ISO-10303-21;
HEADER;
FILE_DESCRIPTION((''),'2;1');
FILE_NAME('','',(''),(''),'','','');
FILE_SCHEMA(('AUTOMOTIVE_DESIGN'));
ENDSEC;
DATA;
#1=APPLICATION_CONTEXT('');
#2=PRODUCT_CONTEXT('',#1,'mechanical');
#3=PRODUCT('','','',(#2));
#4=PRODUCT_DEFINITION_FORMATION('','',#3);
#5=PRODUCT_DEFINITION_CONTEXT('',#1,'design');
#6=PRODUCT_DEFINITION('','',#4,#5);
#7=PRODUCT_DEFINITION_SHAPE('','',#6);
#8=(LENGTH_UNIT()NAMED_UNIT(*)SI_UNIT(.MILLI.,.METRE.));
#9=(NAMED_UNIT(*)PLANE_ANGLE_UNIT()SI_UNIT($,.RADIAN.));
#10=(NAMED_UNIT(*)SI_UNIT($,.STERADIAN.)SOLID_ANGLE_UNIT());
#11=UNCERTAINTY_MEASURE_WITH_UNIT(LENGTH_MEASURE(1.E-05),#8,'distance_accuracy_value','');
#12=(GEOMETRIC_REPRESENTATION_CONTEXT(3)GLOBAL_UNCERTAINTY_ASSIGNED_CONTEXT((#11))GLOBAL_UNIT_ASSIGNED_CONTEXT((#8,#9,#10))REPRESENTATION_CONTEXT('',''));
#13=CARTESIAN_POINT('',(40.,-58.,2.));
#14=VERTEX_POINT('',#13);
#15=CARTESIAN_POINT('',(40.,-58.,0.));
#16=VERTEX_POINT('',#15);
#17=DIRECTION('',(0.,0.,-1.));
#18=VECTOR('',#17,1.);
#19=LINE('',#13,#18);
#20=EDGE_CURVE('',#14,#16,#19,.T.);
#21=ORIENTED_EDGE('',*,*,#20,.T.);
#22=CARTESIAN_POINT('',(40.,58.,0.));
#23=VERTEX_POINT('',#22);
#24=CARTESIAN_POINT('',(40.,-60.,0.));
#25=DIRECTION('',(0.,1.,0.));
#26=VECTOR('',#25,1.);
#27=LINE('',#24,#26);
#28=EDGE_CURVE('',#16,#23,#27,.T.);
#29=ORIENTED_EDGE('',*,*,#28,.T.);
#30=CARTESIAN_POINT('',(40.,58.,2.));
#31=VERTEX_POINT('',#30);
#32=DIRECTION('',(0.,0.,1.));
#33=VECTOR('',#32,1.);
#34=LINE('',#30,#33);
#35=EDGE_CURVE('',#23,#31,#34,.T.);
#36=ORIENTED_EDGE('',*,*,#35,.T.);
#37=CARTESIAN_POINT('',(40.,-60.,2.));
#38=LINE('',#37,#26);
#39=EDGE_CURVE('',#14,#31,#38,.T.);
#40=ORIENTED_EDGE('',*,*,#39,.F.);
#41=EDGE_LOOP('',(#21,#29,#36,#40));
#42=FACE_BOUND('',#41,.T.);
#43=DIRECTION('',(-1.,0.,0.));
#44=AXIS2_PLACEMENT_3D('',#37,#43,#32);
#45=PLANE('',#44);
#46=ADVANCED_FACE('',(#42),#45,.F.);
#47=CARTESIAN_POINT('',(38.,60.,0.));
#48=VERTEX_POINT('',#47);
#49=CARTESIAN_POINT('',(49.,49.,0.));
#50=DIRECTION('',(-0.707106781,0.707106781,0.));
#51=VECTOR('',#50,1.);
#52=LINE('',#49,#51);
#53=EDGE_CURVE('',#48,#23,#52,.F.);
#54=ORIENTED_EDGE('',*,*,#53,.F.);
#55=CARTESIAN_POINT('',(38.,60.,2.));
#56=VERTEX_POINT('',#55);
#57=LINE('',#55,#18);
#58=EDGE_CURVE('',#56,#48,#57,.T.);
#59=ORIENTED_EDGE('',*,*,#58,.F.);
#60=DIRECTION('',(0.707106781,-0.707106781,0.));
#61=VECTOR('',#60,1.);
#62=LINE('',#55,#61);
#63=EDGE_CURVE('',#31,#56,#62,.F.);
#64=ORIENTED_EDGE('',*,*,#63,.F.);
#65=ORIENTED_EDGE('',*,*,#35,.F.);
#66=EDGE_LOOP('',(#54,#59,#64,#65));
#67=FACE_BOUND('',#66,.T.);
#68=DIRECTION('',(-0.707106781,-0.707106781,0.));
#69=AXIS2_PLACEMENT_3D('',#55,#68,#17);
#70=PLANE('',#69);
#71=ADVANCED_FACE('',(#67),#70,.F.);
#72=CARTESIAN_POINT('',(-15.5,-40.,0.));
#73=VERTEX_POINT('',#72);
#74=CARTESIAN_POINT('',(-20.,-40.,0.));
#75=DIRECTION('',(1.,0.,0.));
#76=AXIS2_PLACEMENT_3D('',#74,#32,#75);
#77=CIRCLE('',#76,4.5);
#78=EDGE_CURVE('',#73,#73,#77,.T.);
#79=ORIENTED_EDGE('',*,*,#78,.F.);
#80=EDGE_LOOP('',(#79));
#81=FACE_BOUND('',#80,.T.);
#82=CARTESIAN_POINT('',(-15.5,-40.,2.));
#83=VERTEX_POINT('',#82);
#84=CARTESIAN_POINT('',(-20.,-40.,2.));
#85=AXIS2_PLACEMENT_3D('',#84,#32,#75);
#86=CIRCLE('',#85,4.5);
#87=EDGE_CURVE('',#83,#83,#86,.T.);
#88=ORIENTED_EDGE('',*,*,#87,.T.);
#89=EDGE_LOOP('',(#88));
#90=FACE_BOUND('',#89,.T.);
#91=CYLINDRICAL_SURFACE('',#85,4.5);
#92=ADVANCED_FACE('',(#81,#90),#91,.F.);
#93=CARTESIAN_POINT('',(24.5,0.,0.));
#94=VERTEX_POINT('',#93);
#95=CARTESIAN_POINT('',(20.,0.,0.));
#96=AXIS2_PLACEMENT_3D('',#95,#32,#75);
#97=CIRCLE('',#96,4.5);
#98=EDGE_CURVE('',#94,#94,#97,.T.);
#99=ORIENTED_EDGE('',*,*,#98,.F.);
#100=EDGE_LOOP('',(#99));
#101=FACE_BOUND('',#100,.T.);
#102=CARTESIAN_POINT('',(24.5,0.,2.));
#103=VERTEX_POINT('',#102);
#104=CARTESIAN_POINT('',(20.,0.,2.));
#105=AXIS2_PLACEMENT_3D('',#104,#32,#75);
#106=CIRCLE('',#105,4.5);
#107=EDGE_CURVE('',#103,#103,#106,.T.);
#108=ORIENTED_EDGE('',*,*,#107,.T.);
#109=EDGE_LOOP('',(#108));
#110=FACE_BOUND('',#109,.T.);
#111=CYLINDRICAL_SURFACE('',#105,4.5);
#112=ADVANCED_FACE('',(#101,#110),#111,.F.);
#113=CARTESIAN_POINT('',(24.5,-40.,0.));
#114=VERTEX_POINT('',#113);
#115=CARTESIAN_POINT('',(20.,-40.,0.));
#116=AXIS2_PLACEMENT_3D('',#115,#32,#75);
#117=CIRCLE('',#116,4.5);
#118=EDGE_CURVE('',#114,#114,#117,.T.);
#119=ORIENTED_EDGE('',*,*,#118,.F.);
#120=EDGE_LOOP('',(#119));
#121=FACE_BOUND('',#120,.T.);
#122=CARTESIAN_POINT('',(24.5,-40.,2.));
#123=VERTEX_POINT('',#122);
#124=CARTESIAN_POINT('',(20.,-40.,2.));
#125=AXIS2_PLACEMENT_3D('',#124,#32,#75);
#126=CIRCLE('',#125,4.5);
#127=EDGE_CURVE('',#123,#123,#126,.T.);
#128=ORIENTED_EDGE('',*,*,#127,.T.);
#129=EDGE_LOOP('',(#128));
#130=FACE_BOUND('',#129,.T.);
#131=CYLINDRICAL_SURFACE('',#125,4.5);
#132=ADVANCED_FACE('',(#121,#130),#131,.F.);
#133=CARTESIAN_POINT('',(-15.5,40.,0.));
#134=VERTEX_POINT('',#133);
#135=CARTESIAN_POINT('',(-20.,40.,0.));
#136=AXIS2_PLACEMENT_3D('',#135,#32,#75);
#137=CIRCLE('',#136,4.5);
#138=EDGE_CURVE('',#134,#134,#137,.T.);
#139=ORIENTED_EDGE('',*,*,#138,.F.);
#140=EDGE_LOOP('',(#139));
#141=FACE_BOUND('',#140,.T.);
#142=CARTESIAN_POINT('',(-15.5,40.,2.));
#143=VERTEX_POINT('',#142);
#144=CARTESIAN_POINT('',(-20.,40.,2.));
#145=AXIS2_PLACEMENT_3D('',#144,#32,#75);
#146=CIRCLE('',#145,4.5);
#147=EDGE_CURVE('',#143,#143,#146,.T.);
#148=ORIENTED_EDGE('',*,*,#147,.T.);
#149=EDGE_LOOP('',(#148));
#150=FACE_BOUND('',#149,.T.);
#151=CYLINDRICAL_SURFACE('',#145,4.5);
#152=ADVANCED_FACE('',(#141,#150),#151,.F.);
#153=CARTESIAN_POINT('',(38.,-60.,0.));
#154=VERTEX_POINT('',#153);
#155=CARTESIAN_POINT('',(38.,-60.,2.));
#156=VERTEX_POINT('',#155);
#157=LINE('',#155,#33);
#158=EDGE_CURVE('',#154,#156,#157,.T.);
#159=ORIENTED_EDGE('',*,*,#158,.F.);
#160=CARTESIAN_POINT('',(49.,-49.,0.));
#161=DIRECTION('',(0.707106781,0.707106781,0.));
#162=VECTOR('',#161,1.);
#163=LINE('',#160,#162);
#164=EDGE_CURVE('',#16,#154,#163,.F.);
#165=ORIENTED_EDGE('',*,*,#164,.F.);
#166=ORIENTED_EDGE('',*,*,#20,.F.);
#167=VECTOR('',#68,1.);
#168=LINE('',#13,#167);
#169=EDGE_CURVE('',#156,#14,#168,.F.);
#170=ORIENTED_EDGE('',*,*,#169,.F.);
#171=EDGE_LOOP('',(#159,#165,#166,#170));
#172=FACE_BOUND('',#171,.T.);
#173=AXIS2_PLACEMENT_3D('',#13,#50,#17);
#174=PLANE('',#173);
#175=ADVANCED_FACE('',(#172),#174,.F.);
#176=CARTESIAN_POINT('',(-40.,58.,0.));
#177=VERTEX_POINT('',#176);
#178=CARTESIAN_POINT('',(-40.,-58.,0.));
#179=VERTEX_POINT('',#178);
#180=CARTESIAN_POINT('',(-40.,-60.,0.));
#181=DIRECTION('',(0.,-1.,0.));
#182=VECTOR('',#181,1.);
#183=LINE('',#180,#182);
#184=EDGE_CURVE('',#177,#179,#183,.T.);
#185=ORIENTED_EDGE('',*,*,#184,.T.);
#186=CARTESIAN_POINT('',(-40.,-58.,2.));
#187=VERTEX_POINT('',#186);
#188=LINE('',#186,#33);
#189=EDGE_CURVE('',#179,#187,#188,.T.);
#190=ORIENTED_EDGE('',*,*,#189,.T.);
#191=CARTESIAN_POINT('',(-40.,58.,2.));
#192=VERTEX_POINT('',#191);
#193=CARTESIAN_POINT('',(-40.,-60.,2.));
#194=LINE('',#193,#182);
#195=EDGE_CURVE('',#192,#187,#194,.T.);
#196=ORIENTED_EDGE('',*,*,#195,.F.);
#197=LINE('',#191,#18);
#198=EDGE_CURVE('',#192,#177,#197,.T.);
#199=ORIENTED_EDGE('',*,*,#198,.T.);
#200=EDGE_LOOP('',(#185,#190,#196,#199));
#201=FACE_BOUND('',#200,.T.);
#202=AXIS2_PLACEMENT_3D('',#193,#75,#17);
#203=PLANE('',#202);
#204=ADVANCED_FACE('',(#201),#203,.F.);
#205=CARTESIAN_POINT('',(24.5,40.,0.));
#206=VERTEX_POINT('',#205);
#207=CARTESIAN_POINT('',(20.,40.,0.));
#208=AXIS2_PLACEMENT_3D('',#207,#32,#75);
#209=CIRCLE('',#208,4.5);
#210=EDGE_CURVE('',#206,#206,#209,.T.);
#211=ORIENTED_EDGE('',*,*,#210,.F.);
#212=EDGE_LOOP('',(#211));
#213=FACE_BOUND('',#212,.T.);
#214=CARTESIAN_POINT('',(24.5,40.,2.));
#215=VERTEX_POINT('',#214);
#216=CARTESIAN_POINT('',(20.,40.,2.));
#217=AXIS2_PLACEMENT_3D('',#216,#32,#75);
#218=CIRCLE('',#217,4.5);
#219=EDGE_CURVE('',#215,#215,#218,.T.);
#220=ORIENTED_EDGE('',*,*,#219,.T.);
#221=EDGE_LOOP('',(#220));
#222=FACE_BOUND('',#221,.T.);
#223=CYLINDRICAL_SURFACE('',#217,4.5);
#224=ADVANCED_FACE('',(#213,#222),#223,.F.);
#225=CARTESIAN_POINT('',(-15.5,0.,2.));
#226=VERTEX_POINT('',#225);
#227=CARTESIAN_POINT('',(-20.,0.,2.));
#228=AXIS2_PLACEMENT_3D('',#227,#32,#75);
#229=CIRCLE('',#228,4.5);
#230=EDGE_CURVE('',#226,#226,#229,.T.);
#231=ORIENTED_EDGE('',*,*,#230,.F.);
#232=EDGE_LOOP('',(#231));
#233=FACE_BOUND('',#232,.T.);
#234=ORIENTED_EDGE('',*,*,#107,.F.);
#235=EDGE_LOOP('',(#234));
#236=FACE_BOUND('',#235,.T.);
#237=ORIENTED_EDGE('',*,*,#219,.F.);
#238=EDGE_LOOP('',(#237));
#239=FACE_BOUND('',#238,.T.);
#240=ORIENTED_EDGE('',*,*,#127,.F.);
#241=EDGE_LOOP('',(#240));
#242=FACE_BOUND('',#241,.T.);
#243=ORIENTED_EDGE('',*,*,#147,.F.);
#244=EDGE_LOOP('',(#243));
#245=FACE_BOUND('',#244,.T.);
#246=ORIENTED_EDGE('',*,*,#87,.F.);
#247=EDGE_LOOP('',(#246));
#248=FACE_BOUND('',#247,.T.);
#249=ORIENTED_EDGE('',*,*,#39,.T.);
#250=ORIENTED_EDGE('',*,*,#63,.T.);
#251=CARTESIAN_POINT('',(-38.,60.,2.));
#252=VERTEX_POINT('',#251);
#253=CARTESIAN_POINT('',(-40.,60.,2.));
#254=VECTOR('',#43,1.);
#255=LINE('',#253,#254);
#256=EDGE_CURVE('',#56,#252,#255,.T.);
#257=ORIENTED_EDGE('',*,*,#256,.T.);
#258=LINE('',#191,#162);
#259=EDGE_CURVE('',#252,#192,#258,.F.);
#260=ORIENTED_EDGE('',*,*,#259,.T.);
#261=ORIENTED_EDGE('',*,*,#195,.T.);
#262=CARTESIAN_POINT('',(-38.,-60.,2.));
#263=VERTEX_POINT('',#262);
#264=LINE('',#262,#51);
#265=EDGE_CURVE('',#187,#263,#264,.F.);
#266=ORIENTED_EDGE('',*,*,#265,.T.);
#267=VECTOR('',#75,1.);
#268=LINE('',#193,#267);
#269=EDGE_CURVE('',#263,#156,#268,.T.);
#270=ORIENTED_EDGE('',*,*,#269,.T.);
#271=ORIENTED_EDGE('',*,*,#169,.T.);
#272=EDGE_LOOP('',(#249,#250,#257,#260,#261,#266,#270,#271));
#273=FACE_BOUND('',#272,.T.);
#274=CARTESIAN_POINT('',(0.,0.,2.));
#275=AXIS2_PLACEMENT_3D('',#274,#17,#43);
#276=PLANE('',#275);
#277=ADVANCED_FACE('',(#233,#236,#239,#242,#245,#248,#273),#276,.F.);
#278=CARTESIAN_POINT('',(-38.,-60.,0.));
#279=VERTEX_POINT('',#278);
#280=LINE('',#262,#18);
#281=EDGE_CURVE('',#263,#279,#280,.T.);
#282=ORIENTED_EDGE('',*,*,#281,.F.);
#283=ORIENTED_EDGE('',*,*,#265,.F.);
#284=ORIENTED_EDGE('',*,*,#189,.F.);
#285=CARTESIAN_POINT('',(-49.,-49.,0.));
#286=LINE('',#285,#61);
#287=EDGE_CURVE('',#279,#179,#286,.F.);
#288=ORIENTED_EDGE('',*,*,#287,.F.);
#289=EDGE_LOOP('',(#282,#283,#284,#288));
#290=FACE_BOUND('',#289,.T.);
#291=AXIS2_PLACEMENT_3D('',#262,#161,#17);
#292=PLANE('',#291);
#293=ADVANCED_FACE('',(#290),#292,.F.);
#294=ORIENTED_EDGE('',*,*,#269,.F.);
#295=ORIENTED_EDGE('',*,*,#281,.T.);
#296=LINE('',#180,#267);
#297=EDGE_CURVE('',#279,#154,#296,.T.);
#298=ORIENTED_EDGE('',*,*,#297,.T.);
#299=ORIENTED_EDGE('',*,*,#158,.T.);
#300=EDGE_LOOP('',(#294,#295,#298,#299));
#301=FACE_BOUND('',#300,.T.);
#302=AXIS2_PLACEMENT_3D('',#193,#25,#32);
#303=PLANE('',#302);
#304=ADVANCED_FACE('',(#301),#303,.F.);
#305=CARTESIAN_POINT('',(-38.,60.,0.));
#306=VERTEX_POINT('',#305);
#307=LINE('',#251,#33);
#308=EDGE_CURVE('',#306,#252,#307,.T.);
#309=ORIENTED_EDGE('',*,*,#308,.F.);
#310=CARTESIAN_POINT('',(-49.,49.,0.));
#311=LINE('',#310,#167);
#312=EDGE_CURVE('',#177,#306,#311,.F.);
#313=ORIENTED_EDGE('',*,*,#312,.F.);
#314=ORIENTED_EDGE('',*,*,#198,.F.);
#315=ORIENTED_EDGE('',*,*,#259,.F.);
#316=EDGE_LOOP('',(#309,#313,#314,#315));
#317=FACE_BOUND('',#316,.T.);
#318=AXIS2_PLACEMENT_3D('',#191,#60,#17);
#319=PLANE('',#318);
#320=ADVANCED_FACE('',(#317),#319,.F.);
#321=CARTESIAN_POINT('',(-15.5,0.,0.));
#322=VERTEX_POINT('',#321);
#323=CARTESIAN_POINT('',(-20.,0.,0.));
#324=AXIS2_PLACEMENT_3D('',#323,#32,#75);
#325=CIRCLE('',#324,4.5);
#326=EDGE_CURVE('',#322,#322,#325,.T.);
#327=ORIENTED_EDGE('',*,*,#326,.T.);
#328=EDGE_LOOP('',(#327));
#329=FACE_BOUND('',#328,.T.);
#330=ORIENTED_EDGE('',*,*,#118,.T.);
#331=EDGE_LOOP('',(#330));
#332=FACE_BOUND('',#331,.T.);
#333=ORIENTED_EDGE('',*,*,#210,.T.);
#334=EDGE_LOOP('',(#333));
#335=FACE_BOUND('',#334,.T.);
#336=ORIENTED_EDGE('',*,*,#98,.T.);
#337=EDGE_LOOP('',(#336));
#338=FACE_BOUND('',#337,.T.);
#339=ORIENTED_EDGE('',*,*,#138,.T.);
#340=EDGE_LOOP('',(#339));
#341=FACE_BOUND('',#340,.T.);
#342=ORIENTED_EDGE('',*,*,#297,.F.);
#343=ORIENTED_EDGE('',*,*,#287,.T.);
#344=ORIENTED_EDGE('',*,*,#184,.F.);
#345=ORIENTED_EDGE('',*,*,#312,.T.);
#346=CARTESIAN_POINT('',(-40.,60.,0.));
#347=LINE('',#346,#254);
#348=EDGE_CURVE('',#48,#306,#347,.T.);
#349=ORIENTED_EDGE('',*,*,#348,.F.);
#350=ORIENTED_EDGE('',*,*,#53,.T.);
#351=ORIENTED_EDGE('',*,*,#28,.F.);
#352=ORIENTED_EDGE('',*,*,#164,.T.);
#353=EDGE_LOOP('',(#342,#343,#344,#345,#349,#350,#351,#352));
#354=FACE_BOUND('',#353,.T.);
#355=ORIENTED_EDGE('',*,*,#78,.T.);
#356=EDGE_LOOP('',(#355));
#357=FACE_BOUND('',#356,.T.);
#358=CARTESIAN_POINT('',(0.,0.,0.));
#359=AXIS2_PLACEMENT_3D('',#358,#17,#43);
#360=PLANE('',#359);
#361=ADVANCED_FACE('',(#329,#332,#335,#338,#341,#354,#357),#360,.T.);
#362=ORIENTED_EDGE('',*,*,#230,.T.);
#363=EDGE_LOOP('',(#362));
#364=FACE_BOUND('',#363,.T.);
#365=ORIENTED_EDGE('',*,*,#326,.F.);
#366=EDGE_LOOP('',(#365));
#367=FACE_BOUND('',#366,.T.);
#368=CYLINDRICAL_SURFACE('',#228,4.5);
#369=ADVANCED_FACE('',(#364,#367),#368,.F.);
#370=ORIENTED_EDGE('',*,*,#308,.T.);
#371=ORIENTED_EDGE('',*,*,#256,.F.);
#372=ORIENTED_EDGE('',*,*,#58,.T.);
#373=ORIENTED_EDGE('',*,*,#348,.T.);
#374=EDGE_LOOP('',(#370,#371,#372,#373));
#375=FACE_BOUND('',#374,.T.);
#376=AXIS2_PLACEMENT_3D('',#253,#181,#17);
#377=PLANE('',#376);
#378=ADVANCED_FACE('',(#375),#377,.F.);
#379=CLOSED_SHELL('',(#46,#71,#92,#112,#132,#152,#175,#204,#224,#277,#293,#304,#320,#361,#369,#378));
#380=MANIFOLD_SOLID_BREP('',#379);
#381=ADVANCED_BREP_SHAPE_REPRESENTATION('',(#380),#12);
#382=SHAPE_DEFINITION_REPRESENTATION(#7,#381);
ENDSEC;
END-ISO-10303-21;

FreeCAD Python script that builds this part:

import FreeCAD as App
import Part
import Sketcher
from FreeCAD import Vector


def edges_at(feature, points):
    """Names of the edges that pass closest to the given points."""
    edges = feature.Shape.Edges
    near = lambda p: min(range(len(edges)), key=lambda i: edges[i].distToShape(Part.Vertex(*p))[0])
    return sorted({f"Edge{near(p) + 1}" for p in points})

doc = App.newDocument("Part")
body = doc.addObject("PartDesign::Body", "Body")

# Sketch on XY plane
sketch1 = doc.addObject("Sketcher::SketchObject", "Sketch")
body.addObject(sketch1)
sketch1.AttachmentSupport = (doc.XY_Plane, [""])
sketch1.MapMode = "FlatFace"
sketch1.addGeometry([
    Part.LineSegment(Vector(-40, 60, 0), Vector(-40, -60, 0)),
    Part.LineSegment(Vector(-40, -60, 0), Vector(40, -60, 0)),
    Part.LineSegment(Vector(40, -60, 0), Vector(40, 60, 0)),
    Part.LineSegment(Vector(40, 60, 0), Vector(-40, 60, 0)),
], False)
sketch1.addConstraint([
    Sketcher.Constraint("Coincident", 0, 2, 1, 1),
    Sketcher.Constraint("Coincident", 1, 2, 2, 1),
    Sketcher.Constraint("Coincident", 2, 2, 3, 1),
    Sketcher.Constraint("Coincident", 3, 2, 0, 1),
    Sketcher.Constraint("Vertical", 0),
    Sketcher.Constraint("Horizontal", 1),
    Sketcher.Constraint("Vertical", 2),
    Sketcher.Constraint("Horizontal", 3),
    Sketcher.Constraint("Symmetric", 0, 2, 2, 2, -1, 1),
    Sketcher.Constraint("DistanceX", 1, 1, 1, 2, 80.0),
    Sketcher.Constraint("DistanceY", 0, 2, 0, 1, 120.0),
])
pad1 = doc.addObject("PartDesign::Pad", "Pad")
body.addObject(pad1)
pad1.Profile = sketch1
pad1.Length = 2
doc.recompute()

chamfer = doc.addObject("PartDesign::Chamfer", "Chamfer")
body.addObject(chamfer)
chamfer.Base = (pad1, edges_at(pad1, [
    (40, -60, 1),
    (-40, -60, 1),
    (-40, 60, 1),
    (40, 60, 1),
]))
chamfer.Size = 2

# Sketch on XY plane
sketch2 = doc.addObject("Sketcher::SketchObject", "Sketch001")
body.addObject(sketch2)
sketch2.AttachmentSupport = (doc.XY_Plane, [""])
sketch2.MapMode = "FlatFace"
sketch2.AttachmentOffset = App.Placement(Vector(0, 0, 2), App.Rotation())
sketch2.addGeometry([
    Part.Circle(Vector(-20, 40, 0), Vector(0, 0, 1), 4.5),  # 0
    Part.Circle(Vector(20, 40, 0), Vector(0, 0, 1), 4.5),  # 1
    Part.Circle(Vector(20, 0, 0), Vector(0, 0, 1), 4.5),  # 2
    Part.Circle(Vector(-20, 0, 0), Vector(0, 0, 1), 4.5),  # 3
    Part.Circle(Vector(-20, -40, 0), Vector(0, 0, 1), 4.5),  # 4
    Part.Circle(Vector(20, -40, 0), Vector(0, 0, 1), 4.5),  # 5
], False)
sketch2.addConstraint([
    Sketcher.Constraint("Equal", 0, 1),
    Sketcher.Constraint("Equal", 1, 2),
    Sketcher.Constraint("Equal", 2, 3),
    Sketcher.Constraint("Equal", 3, 4),
    Sketcher.Constraint("Equal", 4, 5),
    Sketcher.Constraint("Symmetric", 2, 3, 3, 3, -1, 1),
    Sketcher.Constraint("Symmetric", 1, 3, 4, 3, -1, 1),
    Sketcher.Constraint("Symmetric", 0, 3, 5, 3, -1, 1),
    Sketcher.Constraint("Symmetric", 0, 3, 1, 3, -2),
    Sketcher.Constraint("PointOnObject", 2, 3, -1),
    Sketcher.Constraint("Vertical", 1, 3, 2, 3),
    Sketcher.Constraint("Diameter", 0, 9.0),
    Sketcher.Constraint("DistanceX", 0, 3, -1, 1, 20.0),
    Sketcher.Constraint("DistanceY", -1, 1, 0, 3, 40.0),
])
doc.recompute()
hole = doc.addObject("PartDesign::Hole", "Hole")
body.addObject(hole)
hole.Profile = sketch2
hole.ThreadType = "None"
hole.Diameter = 9
hole.DepthType = "ThroughAll"

doc.recompute()
